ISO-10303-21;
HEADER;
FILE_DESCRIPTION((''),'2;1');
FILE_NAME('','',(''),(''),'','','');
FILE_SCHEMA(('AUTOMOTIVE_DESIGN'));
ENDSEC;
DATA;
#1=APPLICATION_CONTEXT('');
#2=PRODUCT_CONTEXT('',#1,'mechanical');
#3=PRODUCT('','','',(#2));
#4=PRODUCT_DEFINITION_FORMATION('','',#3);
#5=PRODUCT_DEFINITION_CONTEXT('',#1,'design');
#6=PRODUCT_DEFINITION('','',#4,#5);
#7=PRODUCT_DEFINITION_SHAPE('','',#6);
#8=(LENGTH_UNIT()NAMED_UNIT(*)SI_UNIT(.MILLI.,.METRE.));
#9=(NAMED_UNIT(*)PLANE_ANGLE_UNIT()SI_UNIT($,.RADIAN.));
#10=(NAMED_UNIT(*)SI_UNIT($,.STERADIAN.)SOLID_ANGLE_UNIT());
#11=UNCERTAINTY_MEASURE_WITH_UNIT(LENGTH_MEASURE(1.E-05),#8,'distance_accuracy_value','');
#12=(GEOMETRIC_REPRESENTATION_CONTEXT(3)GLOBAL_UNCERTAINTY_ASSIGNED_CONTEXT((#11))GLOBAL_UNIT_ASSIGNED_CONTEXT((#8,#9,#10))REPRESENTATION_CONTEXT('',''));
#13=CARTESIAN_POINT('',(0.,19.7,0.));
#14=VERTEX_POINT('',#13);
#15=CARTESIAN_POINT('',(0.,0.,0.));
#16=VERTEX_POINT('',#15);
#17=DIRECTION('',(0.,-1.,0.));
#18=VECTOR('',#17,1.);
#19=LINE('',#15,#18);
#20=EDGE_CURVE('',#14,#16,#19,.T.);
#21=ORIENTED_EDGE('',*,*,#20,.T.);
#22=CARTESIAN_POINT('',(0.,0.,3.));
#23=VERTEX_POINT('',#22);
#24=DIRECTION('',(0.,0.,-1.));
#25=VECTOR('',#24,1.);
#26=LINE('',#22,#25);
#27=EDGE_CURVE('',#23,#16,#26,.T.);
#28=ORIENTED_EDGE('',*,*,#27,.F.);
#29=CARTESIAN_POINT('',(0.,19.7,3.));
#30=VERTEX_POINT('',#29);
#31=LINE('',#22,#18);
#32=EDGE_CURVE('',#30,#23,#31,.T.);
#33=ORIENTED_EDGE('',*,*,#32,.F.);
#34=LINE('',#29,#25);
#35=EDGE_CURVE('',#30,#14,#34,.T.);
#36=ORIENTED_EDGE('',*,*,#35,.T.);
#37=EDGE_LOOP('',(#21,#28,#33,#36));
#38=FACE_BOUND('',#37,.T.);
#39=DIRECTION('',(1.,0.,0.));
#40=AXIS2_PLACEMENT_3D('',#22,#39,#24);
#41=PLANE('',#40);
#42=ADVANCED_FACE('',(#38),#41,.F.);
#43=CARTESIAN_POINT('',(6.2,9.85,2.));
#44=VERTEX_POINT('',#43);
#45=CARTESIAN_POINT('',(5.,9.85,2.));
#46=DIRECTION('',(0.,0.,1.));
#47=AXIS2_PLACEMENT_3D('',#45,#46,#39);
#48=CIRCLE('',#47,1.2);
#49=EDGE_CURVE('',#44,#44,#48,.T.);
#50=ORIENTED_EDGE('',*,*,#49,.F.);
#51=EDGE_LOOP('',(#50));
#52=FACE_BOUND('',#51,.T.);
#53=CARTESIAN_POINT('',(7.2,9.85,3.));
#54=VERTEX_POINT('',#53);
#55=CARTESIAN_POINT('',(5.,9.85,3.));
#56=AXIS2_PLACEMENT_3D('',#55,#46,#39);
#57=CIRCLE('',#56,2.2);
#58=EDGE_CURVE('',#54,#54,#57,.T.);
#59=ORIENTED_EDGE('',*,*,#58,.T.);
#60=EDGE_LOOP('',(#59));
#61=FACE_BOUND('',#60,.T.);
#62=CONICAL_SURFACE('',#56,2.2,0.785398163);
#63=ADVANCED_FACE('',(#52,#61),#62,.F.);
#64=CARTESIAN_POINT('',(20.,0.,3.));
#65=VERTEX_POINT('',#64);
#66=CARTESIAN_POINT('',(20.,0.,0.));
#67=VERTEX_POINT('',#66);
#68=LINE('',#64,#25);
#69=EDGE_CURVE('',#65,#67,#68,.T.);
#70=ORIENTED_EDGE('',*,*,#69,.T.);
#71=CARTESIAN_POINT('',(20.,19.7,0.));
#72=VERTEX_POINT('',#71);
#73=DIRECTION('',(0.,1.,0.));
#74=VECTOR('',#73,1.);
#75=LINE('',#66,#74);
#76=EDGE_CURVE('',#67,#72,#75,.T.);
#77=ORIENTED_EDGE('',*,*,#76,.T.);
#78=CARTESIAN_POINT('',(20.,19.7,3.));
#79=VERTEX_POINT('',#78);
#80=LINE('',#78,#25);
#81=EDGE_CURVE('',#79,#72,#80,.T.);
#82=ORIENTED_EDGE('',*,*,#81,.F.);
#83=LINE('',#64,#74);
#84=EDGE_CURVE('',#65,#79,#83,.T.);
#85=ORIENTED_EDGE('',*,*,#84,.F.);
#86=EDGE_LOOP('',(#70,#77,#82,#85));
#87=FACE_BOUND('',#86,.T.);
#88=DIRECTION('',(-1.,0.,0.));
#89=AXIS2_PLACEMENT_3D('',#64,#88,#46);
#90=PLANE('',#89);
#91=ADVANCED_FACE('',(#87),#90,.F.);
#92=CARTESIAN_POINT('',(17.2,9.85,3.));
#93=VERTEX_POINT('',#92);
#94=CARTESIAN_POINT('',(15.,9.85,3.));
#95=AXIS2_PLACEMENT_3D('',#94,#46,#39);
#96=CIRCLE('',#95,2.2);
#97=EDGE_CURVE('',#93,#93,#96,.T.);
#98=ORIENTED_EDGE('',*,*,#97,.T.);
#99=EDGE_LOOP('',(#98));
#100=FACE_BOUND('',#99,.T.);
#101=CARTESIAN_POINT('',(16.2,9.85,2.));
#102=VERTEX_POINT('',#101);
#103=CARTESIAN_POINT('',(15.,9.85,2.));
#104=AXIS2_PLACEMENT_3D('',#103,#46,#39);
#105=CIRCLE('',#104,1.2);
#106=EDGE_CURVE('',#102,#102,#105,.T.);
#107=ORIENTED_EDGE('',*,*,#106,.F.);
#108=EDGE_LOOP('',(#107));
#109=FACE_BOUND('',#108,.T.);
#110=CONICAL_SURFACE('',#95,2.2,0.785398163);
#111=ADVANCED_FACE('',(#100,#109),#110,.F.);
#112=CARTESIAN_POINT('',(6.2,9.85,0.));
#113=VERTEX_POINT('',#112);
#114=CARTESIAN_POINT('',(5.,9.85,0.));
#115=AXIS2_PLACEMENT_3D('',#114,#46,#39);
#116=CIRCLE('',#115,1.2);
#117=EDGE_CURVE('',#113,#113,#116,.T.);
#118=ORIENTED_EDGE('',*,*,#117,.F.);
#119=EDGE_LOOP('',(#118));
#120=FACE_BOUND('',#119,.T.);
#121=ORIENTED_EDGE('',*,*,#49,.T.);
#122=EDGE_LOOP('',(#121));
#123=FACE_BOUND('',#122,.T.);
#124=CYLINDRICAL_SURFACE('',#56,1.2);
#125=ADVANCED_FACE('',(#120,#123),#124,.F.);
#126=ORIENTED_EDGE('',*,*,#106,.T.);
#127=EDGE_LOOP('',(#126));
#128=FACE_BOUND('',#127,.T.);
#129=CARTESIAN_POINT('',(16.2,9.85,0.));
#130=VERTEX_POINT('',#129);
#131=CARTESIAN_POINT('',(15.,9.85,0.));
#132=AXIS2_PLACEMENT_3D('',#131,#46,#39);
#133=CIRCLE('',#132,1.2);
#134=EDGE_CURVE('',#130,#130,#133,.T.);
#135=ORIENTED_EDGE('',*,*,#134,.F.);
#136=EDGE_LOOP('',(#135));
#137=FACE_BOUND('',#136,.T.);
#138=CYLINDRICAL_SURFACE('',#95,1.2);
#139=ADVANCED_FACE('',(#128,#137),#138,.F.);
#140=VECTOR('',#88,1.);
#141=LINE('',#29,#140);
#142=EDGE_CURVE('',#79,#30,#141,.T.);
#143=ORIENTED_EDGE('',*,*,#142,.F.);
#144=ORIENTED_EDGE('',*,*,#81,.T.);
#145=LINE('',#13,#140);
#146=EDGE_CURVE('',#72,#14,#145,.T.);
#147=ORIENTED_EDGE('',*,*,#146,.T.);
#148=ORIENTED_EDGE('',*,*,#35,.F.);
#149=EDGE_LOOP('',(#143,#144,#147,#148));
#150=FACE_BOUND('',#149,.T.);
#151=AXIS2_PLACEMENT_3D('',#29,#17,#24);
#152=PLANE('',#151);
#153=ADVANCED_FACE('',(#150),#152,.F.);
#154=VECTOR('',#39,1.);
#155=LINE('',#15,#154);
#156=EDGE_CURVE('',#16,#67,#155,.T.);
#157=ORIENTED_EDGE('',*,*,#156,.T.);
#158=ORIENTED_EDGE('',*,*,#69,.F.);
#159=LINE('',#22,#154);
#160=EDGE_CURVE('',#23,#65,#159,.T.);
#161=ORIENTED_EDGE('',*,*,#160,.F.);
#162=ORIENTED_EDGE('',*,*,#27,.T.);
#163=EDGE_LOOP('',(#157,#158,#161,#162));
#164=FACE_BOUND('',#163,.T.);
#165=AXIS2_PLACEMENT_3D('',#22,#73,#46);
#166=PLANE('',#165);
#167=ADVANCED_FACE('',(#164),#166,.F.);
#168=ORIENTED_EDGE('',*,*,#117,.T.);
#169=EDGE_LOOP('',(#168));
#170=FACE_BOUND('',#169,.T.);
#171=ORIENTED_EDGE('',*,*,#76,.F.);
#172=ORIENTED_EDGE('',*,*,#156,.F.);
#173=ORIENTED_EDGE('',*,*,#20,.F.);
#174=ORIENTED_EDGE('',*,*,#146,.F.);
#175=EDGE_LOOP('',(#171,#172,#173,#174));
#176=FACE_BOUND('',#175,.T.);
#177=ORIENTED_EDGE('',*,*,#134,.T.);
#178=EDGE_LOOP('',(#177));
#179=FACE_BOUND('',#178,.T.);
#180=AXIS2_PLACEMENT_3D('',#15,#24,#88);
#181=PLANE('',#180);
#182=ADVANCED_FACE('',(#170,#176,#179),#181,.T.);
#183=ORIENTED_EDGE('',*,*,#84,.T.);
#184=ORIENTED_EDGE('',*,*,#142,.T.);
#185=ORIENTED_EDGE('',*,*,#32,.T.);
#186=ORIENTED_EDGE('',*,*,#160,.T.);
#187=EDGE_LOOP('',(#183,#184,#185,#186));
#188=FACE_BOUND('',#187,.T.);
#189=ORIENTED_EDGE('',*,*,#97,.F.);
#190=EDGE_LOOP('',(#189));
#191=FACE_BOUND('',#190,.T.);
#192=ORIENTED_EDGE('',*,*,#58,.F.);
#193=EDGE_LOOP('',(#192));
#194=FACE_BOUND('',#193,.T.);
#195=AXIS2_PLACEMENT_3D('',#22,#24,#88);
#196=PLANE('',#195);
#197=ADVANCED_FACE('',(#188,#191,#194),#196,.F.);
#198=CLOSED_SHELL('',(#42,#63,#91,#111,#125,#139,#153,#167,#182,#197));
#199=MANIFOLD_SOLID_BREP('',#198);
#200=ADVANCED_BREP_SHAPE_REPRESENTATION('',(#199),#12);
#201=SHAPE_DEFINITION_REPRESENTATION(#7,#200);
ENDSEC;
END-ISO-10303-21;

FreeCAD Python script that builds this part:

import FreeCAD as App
import Part
import Sketcher


def add_polygon(sketch, points):
    """Adds a closed chain of lines whose ends are joined by coincident constraints."""
    first, n = sketch.GeometryCount, len(points)
    for a, b in zip(points, points[1:] + points[:1]):
        sketch.addGeometry(Part.LineSegment(App.Vector(*a, 0), App.Vector(*b, 0)), False)
    for i in range(n):
        sketch.addConstraint(Sketcher.Constraint("Coincident", first + i, 2, first + (i + 1) % n, 1))

doc = App.newDocument("Part")
body = doc.addObject("PartDesign::Body", "Body")

sketch1 = doc.addObject("Sketcher::SketchObject", "Sketch")
body.addObject(sketch1)
sketch1.AttachmentSupport = (doc.XY_Plane, [""])
sketch1.MapMode = "FlatFace"
add_polygon(sketch1, [(0, 20), (0, 0), (20, 0), (20, 20)])
sketch1.addConstraint(Sketcher.Constraint("Vertical", 0))
sketch1.addConstraint(Sketcher.Constraint("Horizontal", 1))
sketch1.addConstraint(Sketcher.Constraint("Vertical", 2))
sketch1.addConstraint(Sketcher.Constraint("Horizontal", 3))
sketch1.addConstraint(Sketcher.Constraint("Coincident", 0, 2, -1, 1))
sketch1.addConstraint(Sketcher.Constraint("DistanceX", 1, 1, 1, 2, 20.0))
sketch1.addConstraint(Sketcher.Constraint("DistanceY", 0, 2, 0, 1, 19.7))
pad1 = doc.addObject("PartDesign::Pad", "Pad")
body.addObject(pad1)
pad1.Profile = sketch1
pad1.Length = 3

sketch2 = doc.addObject("Sketcher::SketchObject", "Sketch001")
body.addObject(sketch2)
sketch2.AttachmentSupport = (doc.XY_Plane, [""])
sketch2.MapMode = "FlatFace"
sketch2.AttachmentOffset = App.Placement(App.Vector(0, 0, 3), App.Rotation())
sketch2.addGeometry(Part.Circle(App.Vector(5, 9.8, 0), App.Vector(0, 0, 1), 1.2), False)
sketch2.addGeometry(Part.Circle(App.Vector(15, 9.8, 0), App.Vector(0, 0, 1), 1.2), False)
sketch2.addConstraint(Sketcher.Constraint("Equal", 0, 1))
sketch2.addConstraint(Sketcher.Constraint("Horizontal", 0, 3, 1, 3))
sketch2.addConstraint(Sketcher.Constraint("Diameter", 0, 2.4))
sketch2.addConstraint(Sketcher.Constraint("DistanceX", -1, 1, 0, 3, 5.0))
sketch2.addConstraint(Sketcher.Constraint("DistanceX", -1, 1, 1, 3, 15.0))
sketch2.addConstraint(Sketcher.Constraint("DistanceY", -1, 1, 0, 3, 9.85))
doc.recompute()
hole = doc.addObject("PartDesign::Hole", "Hole")
body.addObject(hole)
hole.Profile = sketch2
hole.ThreadType = "None"
hole.Diameter = 2.4
hole.DepthType = "ThroughAll"
hole.HoleCutType = "Countersink"
hole.HoleCutDiameter = 4.4
hole.HoleCutCountersinkAngle = 90

doc.recompute()
